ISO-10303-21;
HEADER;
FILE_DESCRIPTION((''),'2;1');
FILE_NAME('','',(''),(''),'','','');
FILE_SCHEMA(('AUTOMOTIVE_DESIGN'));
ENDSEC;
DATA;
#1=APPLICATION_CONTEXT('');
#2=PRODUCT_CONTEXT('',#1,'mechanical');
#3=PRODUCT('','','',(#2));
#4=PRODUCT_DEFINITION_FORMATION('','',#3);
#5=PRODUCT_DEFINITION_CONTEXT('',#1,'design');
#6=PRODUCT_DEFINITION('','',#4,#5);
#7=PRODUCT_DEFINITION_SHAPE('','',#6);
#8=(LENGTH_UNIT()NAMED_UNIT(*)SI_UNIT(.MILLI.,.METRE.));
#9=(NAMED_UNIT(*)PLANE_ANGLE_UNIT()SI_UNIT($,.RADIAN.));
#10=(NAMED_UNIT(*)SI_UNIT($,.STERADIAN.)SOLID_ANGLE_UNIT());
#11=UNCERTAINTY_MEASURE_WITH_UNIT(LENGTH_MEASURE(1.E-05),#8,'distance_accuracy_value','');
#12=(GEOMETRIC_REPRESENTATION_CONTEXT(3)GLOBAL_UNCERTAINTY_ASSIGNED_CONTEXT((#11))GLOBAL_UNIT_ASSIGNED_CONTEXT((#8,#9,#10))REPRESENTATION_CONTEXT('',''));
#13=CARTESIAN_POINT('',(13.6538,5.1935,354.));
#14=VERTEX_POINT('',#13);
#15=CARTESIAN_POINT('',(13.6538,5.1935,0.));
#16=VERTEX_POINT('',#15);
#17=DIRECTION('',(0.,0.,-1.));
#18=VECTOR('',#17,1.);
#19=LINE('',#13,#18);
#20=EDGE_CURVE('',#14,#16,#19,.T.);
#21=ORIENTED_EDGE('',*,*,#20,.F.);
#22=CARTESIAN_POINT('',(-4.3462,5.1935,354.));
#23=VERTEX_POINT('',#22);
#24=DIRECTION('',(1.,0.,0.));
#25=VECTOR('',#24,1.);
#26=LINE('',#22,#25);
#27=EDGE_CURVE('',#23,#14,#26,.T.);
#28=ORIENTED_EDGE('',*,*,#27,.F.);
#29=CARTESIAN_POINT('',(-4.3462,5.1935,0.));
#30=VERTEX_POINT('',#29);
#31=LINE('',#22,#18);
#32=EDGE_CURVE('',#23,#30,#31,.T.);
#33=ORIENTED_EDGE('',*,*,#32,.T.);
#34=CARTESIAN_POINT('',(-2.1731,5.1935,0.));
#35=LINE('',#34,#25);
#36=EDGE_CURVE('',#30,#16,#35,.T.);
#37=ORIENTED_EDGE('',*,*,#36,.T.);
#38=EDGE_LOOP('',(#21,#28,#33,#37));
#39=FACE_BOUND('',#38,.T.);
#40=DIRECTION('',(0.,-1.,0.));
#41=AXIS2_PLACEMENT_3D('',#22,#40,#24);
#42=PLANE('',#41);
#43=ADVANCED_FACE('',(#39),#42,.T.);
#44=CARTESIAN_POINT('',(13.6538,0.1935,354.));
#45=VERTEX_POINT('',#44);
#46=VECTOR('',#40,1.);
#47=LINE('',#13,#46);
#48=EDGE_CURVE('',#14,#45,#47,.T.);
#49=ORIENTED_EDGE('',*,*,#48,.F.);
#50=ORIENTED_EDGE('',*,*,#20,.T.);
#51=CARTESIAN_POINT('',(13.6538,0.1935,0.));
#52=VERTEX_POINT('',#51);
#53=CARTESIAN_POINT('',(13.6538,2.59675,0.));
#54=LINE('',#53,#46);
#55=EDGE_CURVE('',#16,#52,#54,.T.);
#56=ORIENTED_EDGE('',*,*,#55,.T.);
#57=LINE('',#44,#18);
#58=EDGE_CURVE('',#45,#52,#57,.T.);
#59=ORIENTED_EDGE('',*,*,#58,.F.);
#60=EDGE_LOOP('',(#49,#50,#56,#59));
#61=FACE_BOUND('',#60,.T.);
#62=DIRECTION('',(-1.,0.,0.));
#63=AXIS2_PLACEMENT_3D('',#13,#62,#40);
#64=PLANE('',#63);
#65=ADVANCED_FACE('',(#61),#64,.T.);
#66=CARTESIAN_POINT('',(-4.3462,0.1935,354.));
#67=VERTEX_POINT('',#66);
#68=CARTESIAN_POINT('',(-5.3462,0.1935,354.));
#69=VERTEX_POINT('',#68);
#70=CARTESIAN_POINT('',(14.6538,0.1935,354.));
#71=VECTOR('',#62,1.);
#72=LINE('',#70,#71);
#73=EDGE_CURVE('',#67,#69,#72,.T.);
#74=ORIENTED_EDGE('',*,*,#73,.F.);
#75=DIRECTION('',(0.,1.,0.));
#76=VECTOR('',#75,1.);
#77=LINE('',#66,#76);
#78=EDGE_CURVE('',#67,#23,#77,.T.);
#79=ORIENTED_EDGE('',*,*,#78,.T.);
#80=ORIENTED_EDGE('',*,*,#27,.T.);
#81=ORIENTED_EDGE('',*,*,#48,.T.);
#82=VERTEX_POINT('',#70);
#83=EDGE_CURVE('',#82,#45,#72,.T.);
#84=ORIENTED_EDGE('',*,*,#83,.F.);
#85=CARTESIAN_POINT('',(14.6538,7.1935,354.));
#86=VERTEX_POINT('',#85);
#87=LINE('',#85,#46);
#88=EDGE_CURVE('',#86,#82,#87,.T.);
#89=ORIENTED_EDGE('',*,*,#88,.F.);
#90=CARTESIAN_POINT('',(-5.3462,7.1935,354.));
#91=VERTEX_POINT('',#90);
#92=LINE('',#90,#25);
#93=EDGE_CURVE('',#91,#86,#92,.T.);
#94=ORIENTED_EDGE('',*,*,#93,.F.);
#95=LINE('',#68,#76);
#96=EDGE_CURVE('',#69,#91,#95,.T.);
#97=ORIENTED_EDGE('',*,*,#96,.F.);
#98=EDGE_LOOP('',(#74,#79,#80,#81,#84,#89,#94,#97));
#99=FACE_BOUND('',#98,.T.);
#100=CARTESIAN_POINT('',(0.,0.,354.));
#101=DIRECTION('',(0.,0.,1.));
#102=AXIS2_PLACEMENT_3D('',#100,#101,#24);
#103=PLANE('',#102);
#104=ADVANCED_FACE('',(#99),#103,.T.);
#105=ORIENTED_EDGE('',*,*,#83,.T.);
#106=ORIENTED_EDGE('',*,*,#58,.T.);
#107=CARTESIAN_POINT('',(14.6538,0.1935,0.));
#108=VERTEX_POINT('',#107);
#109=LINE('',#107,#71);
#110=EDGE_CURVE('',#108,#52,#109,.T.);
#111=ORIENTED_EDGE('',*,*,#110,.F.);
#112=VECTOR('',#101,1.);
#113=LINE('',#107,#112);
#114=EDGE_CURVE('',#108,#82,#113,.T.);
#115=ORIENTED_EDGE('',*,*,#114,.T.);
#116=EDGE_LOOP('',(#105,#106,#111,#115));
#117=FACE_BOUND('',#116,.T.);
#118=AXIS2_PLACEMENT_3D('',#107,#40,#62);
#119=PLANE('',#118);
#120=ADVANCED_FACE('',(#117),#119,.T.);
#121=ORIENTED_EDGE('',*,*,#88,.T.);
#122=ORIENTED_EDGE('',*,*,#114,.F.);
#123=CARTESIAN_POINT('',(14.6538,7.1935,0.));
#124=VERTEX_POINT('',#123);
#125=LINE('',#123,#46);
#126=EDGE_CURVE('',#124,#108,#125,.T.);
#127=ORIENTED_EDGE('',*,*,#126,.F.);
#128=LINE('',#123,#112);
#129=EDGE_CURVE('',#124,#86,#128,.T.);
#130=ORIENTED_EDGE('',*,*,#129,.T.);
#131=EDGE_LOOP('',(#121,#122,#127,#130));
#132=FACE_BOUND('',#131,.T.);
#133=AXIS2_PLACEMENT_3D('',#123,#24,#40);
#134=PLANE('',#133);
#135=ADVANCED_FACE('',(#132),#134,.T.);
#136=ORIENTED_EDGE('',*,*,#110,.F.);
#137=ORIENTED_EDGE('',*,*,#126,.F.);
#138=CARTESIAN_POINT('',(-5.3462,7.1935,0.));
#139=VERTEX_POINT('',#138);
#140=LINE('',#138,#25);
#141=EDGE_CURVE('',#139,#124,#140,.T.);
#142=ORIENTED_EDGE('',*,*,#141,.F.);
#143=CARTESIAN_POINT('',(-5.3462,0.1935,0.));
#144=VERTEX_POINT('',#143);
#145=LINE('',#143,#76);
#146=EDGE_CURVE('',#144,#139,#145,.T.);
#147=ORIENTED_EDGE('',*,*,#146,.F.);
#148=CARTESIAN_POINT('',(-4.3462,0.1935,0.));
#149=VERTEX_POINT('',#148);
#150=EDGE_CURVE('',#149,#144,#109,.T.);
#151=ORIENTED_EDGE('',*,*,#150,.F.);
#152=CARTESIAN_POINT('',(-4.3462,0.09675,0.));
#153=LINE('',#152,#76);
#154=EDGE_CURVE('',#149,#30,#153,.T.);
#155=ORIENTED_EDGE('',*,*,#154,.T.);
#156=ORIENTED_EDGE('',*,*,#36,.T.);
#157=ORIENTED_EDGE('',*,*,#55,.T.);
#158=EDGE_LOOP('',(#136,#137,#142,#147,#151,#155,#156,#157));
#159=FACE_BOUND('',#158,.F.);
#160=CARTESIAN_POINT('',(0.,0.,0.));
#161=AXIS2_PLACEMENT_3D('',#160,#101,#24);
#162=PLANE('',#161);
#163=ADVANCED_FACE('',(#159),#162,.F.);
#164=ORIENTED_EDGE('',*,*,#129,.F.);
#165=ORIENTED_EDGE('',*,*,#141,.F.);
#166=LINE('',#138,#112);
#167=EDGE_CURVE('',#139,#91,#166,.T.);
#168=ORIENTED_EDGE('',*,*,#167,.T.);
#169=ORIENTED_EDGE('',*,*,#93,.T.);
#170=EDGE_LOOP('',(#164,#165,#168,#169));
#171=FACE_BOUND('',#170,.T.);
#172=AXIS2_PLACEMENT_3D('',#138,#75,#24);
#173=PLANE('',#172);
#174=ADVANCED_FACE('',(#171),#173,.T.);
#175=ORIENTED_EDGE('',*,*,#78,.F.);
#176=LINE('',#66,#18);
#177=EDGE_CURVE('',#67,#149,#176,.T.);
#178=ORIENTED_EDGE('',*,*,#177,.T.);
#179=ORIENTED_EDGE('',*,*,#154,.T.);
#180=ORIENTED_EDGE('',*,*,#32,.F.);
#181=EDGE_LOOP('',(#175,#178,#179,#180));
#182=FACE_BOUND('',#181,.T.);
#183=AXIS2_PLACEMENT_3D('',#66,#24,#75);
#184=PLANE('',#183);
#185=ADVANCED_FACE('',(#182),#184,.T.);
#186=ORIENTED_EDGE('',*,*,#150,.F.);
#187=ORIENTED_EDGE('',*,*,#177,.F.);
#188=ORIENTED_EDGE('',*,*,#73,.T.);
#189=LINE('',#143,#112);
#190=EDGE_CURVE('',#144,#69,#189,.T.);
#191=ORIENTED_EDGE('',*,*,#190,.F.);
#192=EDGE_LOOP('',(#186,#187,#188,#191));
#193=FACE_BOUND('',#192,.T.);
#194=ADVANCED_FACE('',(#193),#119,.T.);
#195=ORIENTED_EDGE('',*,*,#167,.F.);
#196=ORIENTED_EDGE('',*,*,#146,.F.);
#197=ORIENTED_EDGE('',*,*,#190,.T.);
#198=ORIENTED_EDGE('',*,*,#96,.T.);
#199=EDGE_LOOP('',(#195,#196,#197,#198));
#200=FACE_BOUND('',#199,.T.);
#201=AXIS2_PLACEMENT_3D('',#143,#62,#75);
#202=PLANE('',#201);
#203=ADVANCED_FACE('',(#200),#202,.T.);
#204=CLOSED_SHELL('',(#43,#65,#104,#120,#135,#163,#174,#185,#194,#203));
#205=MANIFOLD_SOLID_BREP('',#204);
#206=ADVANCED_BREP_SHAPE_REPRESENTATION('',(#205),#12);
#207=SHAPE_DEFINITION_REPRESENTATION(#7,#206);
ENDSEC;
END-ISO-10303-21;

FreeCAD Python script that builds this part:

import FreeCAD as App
import Part
import Sketcher
from FreeCAD import Vector

doc = App.newDocument("Part")
params = doc.addObject("Spreadsheet::Sheet", "Params")
for row, (alias, value) in enumerate([
    ("sketch1_width", "20 mm"),
    ("sketch1_height", "7 mm"),
    ("pad1_length", "354 mm"),
    ("sketch2_width", "18 mm"),
    ("sketch2_height", "5 mm"),
    ("pocket1_length", "364.5 mm"),
], start=1):
    params.set(f"A{row}", alias)
    params.set(f"B{row}", "=" + value)
    params.setAlias(f"B{row}", alias)

body = doc.addObject("PartDesign::Body", "Body")

# Sketch on XY plane
sketch1 = doc.addObject("Sketcher::SketchObject", "Sketch")
body.addObject(sketch1)
sketch1.AttachmentSupport = (doc.XY_Plane, [""])
sketch1.MapMode = "FlatFace"
sketch1.addGeometry([
    Part.LineSegment(Vector(14.6538, 7.1935, 0), Vector(-5.3462, 7.1935, 0)),
    Part.LineSegment(Vector(-5.3462, 7.1935, 0), Vector(-5.3462, 0.1935, 0)),
    Part.LineSegment(Vector(-5.3462, 0.1935, 0), Vector(14.6538, 0.1935, 0)),
    Part.LineSegment(Vector(14.6538, 0.1935, 0), Vector(14.6538, 7.1935, 0)),
], False)
sketch1.addConstraint([
    Sketcher.Constraint("Coincident", 0, 2, 1, 1),
    Sketcher.Constraint("Coincident", 1, 2, 2, 1),
    Sketcher.Constraint("Coincident", 2, 2, 3, 1),
    Sketcher.Constraint("Coincident", 3, 2, 0, 1),
    Sketcher.Constraint("Horizontal", 0),
    Sketcher.Constraint("Vertical", 1),
    Sketcher.Constraint("Horizontal", 2),
    Sketcher.Constraint("Vertical", 3),
    Sketcher.Constraint("DistanceX", 0, 2, 0, 1, 20.0),
    Sketcher.Constraint("DistanceY", 1, 2, 1, 1, 7.0),
    Sketcher.Constraint("DistanceX", 0, 2, -1, 1, 5.3462),
    Sketcher.Constraint("DistanceY", -1, 1, 0, 2, 7.1935),
])
sketch1.setExpression("Constraints[8]", "Params.sketch1_width")
sketch1.setExpression("Constraints[9]", "Params.sketch1_height")
pad1 = doc.addObject("PartDesign::Pad", "Pad")
body.addObject(pad1)
pad1.Profile = sketch1
pad1.setExpression("Length", "Params.pad1_length")

# Sketch on XY plane
sketch2 = doc.addObject("Sketcher::SketchObject", "Sketch001")
body.addObject(sketch2)
sketch2.AttachmentSupport = (doc.XY_Plane, [""])
sketch2.MapMode = "FlatFace"
sketch2.AttachmentOffset = App.Placement(Vector(0, 0, 354), App.Rotation())
sketch2.addGeometry([
    Part.LineSegment(Vector(-4.3462, 5.1935, 0), Vector(-4.3462, 0.1935, 0)),
    Part.LineSegment(Vector(-4.3462, 0.1935, 0), Vector(13.6538, 0.1935, 0)),
    Part.LineSegment(Vector(13.6538, 0.1935, 0), Vector(13.6538, 5.1935, 0)),
    Part.LineSegment(Vector(13.6538, 5.1935, 0), Vector(-4.3462, 5.1935, 0)),
], False)
sketch2.addConstraint([
    Sketcher.Constraint("Coincident", 0, 2, 1, 1),
    Sketcher.Constraint("Coincident", 1, 2, 2, 1),
    Sketcher.Constraint("Coincident", 2, 2, 3, 1),
    Sketcher.Constraint("Coincident", 3, 2, 0, 1),
    Sketcher.Constraint("Vertical", 0),
    Sketcher.Constraint("Horizontal", 1),
    Sketcher.Constraint("Vertical", 2),
    Sketcher.Constraint("Horizontal", 3),
    Sketcher.Constraint("DistanceX", 1, 1, 1, 2, 18.0),
    Sketcher.Constraint("DistanceY", 0, 2, 0, 1, 5.0),
    Sketcher.Constraint("DistanceX", 0, 2, -1, 1, 4.3462),
    Sketcher.Constraint("DistanceY", -1, 1, 0, 2, 0.1935),
])
sketch2.setExpression("Constraints[8]", "Params.sketch2_width")
sketch2.setExpression("Constraints[9]", "Params.sketch2_height")
pocket1 = doc.addObject("PartDesign::Pocket", "Pocket")
body.addObject(pocket1)
pocket1.Profile = sketch2
pocket1.setExpression("Length", "Params.pocket1_length")

doc.recompute()
